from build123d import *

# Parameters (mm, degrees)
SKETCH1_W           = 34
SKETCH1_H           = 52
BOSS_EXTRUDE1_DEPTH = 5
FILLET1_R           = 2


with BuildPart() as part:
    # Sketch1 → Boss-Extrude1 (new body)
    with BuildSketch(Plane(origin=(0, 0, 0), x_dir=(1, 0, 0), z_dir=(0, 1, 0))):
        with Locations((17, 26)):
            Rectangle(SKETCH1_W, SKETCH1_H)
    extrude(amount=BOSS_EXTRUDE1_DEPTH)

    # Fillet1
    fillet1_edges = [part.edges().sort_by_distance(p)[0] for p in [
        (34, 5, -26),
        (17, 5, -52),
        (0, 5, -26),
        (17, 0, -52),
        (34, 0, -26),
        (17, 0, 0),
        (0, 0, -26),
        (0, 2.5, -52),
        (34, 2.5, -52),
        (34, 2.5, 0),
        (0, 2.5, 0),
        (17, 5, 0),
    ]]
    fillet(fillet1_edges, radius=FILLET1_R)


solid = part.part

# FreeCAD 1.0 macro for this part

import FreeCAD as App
import Part
import Sketcher
Q = App.Units.Quantity

doc = App.newDocument("Part")
params = doc.addObject("Spreadsheet::Sheet", "Params")
for row, (alias, value) in enumerate([
    ("sketch1_width", "34 mm"),
    ("sketch1_height", "52 mm"),
    ("pad1_length", "5 mm"),
    ("fillet_radius", "2 mm"),
], start=1):
    params.set(f"A{row}", alias)
    params.set(f"B{row}", "=" + value)
    params.setAlias(f"B{row}", alias)

body = doc.addObject("PartDesign::Body", "Body")

# Sketch on XZ plane
sketch1 = body.newObject("Sketcher::SketchObject", "Sketch")
sketch1.AttachmentSupport = (doc.getObject("XZ_Plane"), [""])
sketch1.MapMode = "FlatFace"
sketch1.addGeometry([
    Part.LineSegment(App.Vector(0, -52, 0), App.Vector(0, 0, 0)),
    Part.LineSegment(App.Vector(0, 0, 0), App.Vector(34, 0, 0)),
    Part.LineSegment(App.Vector(34, 0, 0), App.Vector(34, -52, 0)),
    Part.LineSegment(App.Vector(34, -52, 0), App.Vector(0, -52, 0)),
], False)
sketch1.addConstraint([
    Sketcher.Constraint("Coincident", 0, 2, 1, 1),
    Sketcher.Constraint("Coincident", 1, 2, 2, 1),
    Sketcher.Constraint("Coincident", 2, 2, 3, 1),
    Sketcher.Constraint("Coincident", 3, 2, 0, 1),
    Sketcher.Constraint("Vertical", 0),
    Sketcher.Constraint("Horizontal", 1),
    Sketcher.Constraint("Vertical", 2),
    Sketcher.Constraint("Horizontal", 3),
    Sketcher.Constraint("Coincident", 0, 2, -1, 1),
    Sketcher.Constraint("DistanceX", 1, 1, 1, 2, Q("34 mm")),
    Sketcher.Constraint("DistanceY", 0, 1, 0, 2, Q("52 mm")),
])
sketch1.setExpression("Constraints[9]", "Params.sketch1_width")
sketch1.setExpression("Constraints[10]", "Params.sketch1_height")
pad1 = body.newObject("PartDesign::Pad", "Pad")
pad1.Profile = sketch1
pad1.setExpression("Length", "Params.pad1_length")
pad1.Reversed = True
doc.recompute()

fillet = body.newObject("PartDesign::Fillet", "Fillet")
fillet.Base = (pad1, ["Edge1"])
fillet.UseAllEdges = True
fillet.setExpression("Radius", "Params.fillet_radius")

doc.recompute()
